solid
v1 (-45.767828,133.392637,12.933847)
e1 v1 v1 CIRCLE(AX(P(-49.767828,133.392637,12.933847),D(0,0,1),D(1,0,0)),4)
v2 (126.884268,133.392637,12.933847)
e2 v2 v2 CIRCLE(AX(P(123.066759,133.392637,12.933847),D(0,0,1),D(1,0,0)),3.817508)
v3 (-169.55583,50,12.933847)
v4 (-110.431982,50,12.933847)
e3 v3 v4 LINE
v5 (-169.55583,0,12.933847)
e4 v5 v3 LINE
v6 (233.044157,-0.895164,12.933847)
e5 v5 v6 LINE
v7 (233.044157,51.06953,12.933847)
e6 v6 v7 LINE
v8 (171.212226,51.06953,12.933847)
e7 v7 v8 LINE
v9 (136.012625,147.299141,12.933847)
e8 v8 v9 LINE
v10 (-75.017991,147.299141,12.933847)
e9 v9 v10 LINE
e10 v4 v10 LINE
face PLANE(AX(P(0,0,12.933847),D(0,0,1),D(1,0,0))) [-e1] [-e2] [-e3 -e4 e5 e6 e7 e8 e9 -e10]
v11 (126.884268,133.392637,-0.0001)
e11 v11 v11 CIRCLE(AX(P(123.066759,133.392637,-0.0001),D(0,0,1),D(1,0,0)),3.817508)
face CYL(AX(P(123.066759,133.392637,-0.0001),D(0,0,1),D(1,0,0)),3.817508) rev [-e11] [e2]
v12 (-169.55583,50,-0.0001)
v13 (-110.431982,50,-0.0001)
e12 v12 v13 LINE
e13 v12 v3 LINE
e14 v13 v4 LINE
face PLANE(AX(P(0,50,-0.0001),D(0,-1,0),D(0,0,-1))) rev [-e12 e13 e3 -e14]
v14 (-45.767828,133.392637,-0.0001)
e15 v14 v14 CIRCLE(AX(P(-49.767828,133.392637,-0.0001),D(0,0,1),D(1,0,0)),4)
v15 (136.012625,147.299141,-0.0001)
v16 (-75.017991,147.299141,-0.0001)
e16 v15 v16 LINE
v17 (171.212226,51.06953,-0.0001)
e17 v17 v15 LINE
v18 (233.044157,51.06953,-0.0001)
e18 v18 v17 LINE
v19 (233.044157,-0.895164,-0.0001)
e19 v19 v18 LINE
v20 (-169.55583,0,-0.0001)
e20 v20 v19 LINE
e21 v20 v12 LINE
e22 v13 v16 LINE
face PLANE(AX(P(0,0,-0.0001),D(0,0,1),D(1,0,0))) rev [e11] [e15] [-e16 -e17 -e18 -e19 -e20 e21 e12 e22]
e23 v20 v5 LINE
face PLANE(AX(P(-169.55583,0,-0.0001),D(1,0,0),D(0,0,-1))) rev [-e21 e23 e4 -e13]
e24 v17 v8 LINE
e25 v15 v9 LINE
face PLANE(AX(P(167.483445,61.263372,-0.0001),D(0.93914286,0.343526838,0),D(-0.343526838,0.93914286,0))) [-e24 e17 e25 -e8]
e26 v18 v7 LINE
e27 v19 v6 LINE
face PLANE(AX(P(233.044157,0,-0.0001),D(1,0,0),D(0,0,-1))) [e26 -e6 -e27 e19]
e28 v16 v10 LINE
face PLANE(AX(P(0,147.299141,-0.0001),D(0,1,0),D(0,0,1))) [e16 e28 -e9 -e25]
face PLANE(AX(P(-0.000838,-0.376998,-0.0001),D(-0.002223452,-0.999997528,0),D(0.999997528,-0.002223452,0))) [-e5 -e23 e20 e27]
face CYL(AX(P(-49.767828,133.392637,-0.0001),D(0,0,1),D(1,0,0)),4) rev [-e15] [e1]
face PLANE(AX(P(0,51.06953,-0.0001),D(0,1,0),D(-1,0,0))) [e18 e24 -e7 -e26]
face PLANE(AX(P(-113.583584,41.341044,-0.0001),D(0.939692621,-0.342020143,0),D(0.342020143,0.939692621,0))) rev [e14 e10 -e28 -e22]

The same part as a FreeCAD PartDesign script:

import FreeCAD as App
import Part
import Sketcher

V = App.Vector
Q = App.Units.Quantity

doc = App.newDocument("Part")
body = doc.addObject("PartDesign::Body", "Body")

# Sketch on XY plane
sketch1 = body.newObject("Sketcher::SketchObject", "Sketch")
sketch1.AttachmentSupport = (doc.getObject("XY_Plane"), [""])
sketch1.MapMode = "FlatFace"
sketch1.addGeometry([
    Part.LineSegment(V(171.2, 51.1, 0), V(136, 147.3, 0)),  # 0
    Part.LineSegment(V(136, 147.3, 0), V(-75, 147.3, 0)),  # 1
    Part.LineSegment(V(-75, 147.3, 0), V(-110.4, 50, 0)),  # 2
    Part.LineSegment(V(-110.4, 50, 0), V(-169.6, 50, 0)),  # 3
    Part.LineSegment(V(-169.6, 50, 0), V(-169.6, 0, 0)),  # 4
    Part.LineSegment(V(-169.6, 0, 0), V(233, -0.9, 0)),  # 5
    Part.LineSegment(V(233, -0.9, 0), V(233, 51.1, 0)),  # 6
    Part.LineSegment(V(233, 51.1, 0), V(171.2, 51.1, 0)),  # 7
    Part.Circle(V(-49.8, 133.4, 0), V(0, 0, 1), 4),  # 8
    Part.Circle(V(123.1, 133.4, 0), V(0, 0, 1), 3.8),  # 9
], False)
sketch1.addConstraint([
    Sketcher.Constraint("Coincident", 0, 2, 1, 1),
    Sketcher.Constraint("Coincident", 1, 2, 2, 1),
    Sketcher.Constraint("Coincident", 2, 2, 3, 1),
    Sketcher.Constraint("Coincident", 3, 2, 4, 1),
    Sketcher.Constraint("Coincident", 4, 2, 5, 1),
    Sketcher.Constraint("Coincident", 5, 2, 6, 1),
    Sketcher.Constraint("Coincident", 6, 2, 7, 1),
    Sketcher.Constraint("Coincident", 7, 2, 0, 1),
    Sketcher.Constraint("Horizontal", 1),
    Sketcher.Constraint("Horizontal", 3),
    Sketcher.Constraint("Vertical", 4),
    Sketcher.Constraint("Vertical", 6),
    Sketcher.Constraint("Horizontal", 7),
    Sketcher.Constraint("PointOnObject", 4, 2, -1),
    Sketcher.Constraint("Horizontal", 8, 3, 9, 3),
    Sketcher.Constraint("Diameter", 8, 8.0),
    Sketcher.Constraint("DistanceY", 4, 2, 4, 1, 50.0),
    Sketcher.Constraint("Angle", 2, Q("-110 deg")),
    Sketcher.Constraint("Diameter", 9, 7.635017),
    Sketcher.Constraint("DistanceX", 3, 2, 8, 3, 119.788002),
    Sketcher.Constraint("DistanceX", 3, 2, 3, 1, 59.123848),
    Sketcher.Constraint("DistanceX", 7, 2, 7, 1, 61.831931),
    Sketcher.Constraint("DistanceY", 5, 2, 9, 3, 134.2878),
    Sketcher.Constraint("DistanceX", 0, 2, 7, 2, 35.199601),
    Sketcher.Constraint("Distance", 0, 102.46536),
    Sketcher.Constraint("DistanceX", 1, 2, 1, 1, 211.030616),
    Sketcher.Constraint("DistanceY", 6, 1, 6, 2, 51.964694),
    Sketcher.Constraint("DistanceX", 8, 3, -1, 1, 49.767828),
    Sketcher.Constraint("DistanceX", -1, 1, 9, 3, 123.066759),
    Sketcher.Constraint("DistanceY", -1, 1, 0, 2, 147.299141),
])
pad1 = body.newObject("PartDesign::Pad", "Pad")
pad1.Profile = sketch1
pad1.Type = "TwoLengths"
pad1.Length = 12.933847
pad1.Length2 = 0.0001

doc.recompute()
